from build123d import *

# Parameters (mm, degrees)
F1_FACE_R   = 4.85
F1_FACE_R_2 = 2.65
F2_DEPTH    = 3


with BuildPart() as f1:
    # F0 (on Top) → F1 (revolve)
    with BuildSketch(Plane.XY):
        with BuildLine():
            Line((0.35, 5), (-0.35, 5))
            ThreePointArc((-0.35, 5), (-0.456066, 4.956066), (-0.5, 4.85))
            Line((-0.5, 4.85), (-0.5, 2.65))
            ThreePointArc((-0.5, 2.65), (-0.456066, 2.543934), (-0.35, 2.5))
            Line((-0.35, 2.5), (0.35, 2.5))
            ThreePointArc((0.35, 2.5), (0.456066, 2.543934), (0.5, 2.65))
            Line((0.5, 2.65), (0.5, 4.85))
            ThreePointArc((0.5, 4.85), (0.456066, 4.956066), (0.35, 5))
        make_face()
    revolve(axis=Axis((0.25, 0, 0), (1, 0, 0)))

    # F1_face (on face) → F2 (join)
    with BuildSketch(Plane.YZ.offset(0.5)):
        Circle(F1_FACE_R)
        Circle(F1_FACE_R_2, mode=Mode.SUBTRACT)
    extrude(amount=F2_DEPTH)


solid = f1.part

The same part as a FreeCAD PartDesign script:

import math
import FreeCAD as App
import Part
import Sketcher
from FreeCAD import Vector
Q = App.Units.Quantity

doc = App.newDocument("Part")
params = doc.addObject("Spreadsheet::Sheet", "Params")
for row, (alias, value) in enumerate([
    ("sketch1_radius", "0.15 mm"),
    ("sketch1_width", "0.7 mm"),
    ("sketch1_height", "2.2 mm"),
    ("revolution_angle", "360 deg"),
    ("sketch2_diameter", "9.7 mm"),
    ("sketch2_diameter2", "5.3 mm"),
    ("pad1_length", "3 mm"),
], start=1):
    params.set(f"A{row}", alias)
    params.set(f"B{row}", "=" + value)
    params.setAlias(f"B{row}", alias)

body = doc.addObject("PartDesign::Body", "Body")

sketch1 = body.newObject("Sketcher::SketchObject", "Sketch")
sketch1.AttachmentSupport = (doc.getObject("XY_Plane"), [""])
sketch1.MapMode = "FlatFace"
sketch1.addGeometry(Part.LineSegment(Vector(0.35, 5, 0), Vector(-0.35, 5, 0)), False)
sketch1.addGeometry(Part.ArcOfCircle(Part.Circle(Vector(-0.35, 4.85, 0), Vector(0, 0, 1), 0.15), math.radians(90), math.radians(180)), False)
sketch1.addGeometry(Part.LineSegment(Vector(-0.5, 4.85, 0), Vector(-0.5, 2.65, 0)), False)
sketch1.addGeometry(Part.ArcOfCircle(Part.Circle(Vector(-0.35, 2.65, 0), Vector(0, 0, 1), 0.15), math.radians(-180), math.radians(-90)), False)
sketch1.addGeometry(Part.LineSegment(Vector(-0.35, 2.5, 0), Vector(0.35, 2.5, 0)), False)
sketch1.addGeometry(Part.ArcOfCircle(Part.Circle(Vector(0.35, 2.65, 0), Vector(0, 0, 1), 0.15), math.radians(-90), math.radians(0)), False)
sketch1.addGeometry(Part.LineSegment(Vector(0.5, 2.65, 0), Vector(0.5, 4.85, 0)), False)
sketch1.addGeometry(Part.ArcOfCircle(Part.Circle(Vector(0.35, 4.85, 0), Vector(0, 0, 1), 0.15), math.radians(0), math.radians(90)), False)
sketch1.addConstraint(Sketcher.Constraint("Tangent", 0, 2, 1, 1))
sketch1.addConstraint(Sketcher.Constraint("Tangent", 1, 2, 2, 1))
sketch1.addConstraint(Sketcher.Constraint("Tangent", 2, 2, 3, 1))
sketch1.addConstraint(Sketcher.Constraint("Tangent", 3, 2, 4, 1))
sketch1.addConstraint(Sketcher.Constraint("Tangent", 4, 2, 5, 1))
sketch1.addConstraint(Sketcher.Constraint("Tangent", 5, 2, 6, 1))
sketch1.addConstraint(Sketcher.Constraint("Tangent", 6, 2, 7, 1))
sketch1.addConstraint(Sketcher.Constraint("Tangent", 7, 2, 0, 1))
sketch1.addConstraint(Sketcher.Constraint("Horizontal", 0))
sketch1.addConstraint(Sketcher.Constraint("Vertical", 2))
sketch1.addConstraint(Sketcher.Constraint("Horizontal", 4))
sketch1.addConstraint(Sketcher.Constraint("Vertical", 6))
sketch1.addConstraint(Sketcher.Constraint("Equal", 1, 3))
sketch1.addConstraint(Sketcher.Constraint("Equal", 3, 5))
sketch1.addConstraint(Sketcher.Constraint("Equal", 5, 7))
sketch1.addConstraint(Sketcher.Constraint("Radius", 1, Q("0.15 mm")))
sketch1.addConstraint(Sketcher.Constraint("DistanceX", 0, 2, 0, 1, Q("0.7 mm")))
sketch1.addConstraint(Sketcher.Constraint("DistanceY", 2, 2, 2, 1, Q("2.2 mm")))
sketch1.addConstraint(Sketcher.Constraint("DistanceY", -1, 1, 0, 2, Q("5 mm")))
sketch1.addConstraint(Sketcher.Constraint("DistanceX", 1, 2, -1, 1, Q("0.5 mm")))
sketch1.setExpression("Constraints[15]", "Params.sketch1_radius")
sketch1.setExpression("Constraints[16]", "Params.sketch1_width")
sketch1.setExpression("Constraints[17]", "Params.sketch1_height")
revolution = body.newObject("PartDesign::Revolution", "Revolution")
revolution.Profile = sketch1
revolution.ReferenceAxis = (sketch1, ["H_Axis"])
revolution.setExpression("Angle", "Params.revolution_angle")

sketch2 = body.newObject("Sketcher::SketchObject", "Sketch001")
sketch2.AttachmentSupport = (doc.getObject("YZ_Plane"), [""])
sketch2.MapMode = "FlatFace"
sketch2.AttachmentOffset = App.Placement(Vector(0, 0, 0.5), App.Rotation())
sketch2.addGeometry(Part.Circle(Vector(0, 0, 0), Vector(0, 0, 1), 4.8), False)
sketch2.addGeometry(Part.Circle(Vector(0, 0, 0), Vector(0, 0, 1), 2.6), False)
sketch2.addConstraint(Sketcher.Constraint("Coincident", 0, 3, -1, 1))
sketch2.addConstraint(Sketcher.Constraint("Coincident", 1, 3, -1, 1))
sketch2.addConstraint(Sketcher.Constraint("Diameter", 0, Q("9.7 mm")))
sketch2.addConstraint(Sketcher.Constraint("Diameter", 1, Q("5.3 mm")))
sketch2.setExpression("Constraints[2]", "Params.sketch2_diameter")
sketch2.setExpression("Constraints[3]", "Params.sketch2_diameter2")
pad1 = body.newObject("PartDesign::Pad", "Pad")
pad1.Profile = sketch2
pad1.setExpression("Length", "Params.pad1_length")

doc.recompute()
